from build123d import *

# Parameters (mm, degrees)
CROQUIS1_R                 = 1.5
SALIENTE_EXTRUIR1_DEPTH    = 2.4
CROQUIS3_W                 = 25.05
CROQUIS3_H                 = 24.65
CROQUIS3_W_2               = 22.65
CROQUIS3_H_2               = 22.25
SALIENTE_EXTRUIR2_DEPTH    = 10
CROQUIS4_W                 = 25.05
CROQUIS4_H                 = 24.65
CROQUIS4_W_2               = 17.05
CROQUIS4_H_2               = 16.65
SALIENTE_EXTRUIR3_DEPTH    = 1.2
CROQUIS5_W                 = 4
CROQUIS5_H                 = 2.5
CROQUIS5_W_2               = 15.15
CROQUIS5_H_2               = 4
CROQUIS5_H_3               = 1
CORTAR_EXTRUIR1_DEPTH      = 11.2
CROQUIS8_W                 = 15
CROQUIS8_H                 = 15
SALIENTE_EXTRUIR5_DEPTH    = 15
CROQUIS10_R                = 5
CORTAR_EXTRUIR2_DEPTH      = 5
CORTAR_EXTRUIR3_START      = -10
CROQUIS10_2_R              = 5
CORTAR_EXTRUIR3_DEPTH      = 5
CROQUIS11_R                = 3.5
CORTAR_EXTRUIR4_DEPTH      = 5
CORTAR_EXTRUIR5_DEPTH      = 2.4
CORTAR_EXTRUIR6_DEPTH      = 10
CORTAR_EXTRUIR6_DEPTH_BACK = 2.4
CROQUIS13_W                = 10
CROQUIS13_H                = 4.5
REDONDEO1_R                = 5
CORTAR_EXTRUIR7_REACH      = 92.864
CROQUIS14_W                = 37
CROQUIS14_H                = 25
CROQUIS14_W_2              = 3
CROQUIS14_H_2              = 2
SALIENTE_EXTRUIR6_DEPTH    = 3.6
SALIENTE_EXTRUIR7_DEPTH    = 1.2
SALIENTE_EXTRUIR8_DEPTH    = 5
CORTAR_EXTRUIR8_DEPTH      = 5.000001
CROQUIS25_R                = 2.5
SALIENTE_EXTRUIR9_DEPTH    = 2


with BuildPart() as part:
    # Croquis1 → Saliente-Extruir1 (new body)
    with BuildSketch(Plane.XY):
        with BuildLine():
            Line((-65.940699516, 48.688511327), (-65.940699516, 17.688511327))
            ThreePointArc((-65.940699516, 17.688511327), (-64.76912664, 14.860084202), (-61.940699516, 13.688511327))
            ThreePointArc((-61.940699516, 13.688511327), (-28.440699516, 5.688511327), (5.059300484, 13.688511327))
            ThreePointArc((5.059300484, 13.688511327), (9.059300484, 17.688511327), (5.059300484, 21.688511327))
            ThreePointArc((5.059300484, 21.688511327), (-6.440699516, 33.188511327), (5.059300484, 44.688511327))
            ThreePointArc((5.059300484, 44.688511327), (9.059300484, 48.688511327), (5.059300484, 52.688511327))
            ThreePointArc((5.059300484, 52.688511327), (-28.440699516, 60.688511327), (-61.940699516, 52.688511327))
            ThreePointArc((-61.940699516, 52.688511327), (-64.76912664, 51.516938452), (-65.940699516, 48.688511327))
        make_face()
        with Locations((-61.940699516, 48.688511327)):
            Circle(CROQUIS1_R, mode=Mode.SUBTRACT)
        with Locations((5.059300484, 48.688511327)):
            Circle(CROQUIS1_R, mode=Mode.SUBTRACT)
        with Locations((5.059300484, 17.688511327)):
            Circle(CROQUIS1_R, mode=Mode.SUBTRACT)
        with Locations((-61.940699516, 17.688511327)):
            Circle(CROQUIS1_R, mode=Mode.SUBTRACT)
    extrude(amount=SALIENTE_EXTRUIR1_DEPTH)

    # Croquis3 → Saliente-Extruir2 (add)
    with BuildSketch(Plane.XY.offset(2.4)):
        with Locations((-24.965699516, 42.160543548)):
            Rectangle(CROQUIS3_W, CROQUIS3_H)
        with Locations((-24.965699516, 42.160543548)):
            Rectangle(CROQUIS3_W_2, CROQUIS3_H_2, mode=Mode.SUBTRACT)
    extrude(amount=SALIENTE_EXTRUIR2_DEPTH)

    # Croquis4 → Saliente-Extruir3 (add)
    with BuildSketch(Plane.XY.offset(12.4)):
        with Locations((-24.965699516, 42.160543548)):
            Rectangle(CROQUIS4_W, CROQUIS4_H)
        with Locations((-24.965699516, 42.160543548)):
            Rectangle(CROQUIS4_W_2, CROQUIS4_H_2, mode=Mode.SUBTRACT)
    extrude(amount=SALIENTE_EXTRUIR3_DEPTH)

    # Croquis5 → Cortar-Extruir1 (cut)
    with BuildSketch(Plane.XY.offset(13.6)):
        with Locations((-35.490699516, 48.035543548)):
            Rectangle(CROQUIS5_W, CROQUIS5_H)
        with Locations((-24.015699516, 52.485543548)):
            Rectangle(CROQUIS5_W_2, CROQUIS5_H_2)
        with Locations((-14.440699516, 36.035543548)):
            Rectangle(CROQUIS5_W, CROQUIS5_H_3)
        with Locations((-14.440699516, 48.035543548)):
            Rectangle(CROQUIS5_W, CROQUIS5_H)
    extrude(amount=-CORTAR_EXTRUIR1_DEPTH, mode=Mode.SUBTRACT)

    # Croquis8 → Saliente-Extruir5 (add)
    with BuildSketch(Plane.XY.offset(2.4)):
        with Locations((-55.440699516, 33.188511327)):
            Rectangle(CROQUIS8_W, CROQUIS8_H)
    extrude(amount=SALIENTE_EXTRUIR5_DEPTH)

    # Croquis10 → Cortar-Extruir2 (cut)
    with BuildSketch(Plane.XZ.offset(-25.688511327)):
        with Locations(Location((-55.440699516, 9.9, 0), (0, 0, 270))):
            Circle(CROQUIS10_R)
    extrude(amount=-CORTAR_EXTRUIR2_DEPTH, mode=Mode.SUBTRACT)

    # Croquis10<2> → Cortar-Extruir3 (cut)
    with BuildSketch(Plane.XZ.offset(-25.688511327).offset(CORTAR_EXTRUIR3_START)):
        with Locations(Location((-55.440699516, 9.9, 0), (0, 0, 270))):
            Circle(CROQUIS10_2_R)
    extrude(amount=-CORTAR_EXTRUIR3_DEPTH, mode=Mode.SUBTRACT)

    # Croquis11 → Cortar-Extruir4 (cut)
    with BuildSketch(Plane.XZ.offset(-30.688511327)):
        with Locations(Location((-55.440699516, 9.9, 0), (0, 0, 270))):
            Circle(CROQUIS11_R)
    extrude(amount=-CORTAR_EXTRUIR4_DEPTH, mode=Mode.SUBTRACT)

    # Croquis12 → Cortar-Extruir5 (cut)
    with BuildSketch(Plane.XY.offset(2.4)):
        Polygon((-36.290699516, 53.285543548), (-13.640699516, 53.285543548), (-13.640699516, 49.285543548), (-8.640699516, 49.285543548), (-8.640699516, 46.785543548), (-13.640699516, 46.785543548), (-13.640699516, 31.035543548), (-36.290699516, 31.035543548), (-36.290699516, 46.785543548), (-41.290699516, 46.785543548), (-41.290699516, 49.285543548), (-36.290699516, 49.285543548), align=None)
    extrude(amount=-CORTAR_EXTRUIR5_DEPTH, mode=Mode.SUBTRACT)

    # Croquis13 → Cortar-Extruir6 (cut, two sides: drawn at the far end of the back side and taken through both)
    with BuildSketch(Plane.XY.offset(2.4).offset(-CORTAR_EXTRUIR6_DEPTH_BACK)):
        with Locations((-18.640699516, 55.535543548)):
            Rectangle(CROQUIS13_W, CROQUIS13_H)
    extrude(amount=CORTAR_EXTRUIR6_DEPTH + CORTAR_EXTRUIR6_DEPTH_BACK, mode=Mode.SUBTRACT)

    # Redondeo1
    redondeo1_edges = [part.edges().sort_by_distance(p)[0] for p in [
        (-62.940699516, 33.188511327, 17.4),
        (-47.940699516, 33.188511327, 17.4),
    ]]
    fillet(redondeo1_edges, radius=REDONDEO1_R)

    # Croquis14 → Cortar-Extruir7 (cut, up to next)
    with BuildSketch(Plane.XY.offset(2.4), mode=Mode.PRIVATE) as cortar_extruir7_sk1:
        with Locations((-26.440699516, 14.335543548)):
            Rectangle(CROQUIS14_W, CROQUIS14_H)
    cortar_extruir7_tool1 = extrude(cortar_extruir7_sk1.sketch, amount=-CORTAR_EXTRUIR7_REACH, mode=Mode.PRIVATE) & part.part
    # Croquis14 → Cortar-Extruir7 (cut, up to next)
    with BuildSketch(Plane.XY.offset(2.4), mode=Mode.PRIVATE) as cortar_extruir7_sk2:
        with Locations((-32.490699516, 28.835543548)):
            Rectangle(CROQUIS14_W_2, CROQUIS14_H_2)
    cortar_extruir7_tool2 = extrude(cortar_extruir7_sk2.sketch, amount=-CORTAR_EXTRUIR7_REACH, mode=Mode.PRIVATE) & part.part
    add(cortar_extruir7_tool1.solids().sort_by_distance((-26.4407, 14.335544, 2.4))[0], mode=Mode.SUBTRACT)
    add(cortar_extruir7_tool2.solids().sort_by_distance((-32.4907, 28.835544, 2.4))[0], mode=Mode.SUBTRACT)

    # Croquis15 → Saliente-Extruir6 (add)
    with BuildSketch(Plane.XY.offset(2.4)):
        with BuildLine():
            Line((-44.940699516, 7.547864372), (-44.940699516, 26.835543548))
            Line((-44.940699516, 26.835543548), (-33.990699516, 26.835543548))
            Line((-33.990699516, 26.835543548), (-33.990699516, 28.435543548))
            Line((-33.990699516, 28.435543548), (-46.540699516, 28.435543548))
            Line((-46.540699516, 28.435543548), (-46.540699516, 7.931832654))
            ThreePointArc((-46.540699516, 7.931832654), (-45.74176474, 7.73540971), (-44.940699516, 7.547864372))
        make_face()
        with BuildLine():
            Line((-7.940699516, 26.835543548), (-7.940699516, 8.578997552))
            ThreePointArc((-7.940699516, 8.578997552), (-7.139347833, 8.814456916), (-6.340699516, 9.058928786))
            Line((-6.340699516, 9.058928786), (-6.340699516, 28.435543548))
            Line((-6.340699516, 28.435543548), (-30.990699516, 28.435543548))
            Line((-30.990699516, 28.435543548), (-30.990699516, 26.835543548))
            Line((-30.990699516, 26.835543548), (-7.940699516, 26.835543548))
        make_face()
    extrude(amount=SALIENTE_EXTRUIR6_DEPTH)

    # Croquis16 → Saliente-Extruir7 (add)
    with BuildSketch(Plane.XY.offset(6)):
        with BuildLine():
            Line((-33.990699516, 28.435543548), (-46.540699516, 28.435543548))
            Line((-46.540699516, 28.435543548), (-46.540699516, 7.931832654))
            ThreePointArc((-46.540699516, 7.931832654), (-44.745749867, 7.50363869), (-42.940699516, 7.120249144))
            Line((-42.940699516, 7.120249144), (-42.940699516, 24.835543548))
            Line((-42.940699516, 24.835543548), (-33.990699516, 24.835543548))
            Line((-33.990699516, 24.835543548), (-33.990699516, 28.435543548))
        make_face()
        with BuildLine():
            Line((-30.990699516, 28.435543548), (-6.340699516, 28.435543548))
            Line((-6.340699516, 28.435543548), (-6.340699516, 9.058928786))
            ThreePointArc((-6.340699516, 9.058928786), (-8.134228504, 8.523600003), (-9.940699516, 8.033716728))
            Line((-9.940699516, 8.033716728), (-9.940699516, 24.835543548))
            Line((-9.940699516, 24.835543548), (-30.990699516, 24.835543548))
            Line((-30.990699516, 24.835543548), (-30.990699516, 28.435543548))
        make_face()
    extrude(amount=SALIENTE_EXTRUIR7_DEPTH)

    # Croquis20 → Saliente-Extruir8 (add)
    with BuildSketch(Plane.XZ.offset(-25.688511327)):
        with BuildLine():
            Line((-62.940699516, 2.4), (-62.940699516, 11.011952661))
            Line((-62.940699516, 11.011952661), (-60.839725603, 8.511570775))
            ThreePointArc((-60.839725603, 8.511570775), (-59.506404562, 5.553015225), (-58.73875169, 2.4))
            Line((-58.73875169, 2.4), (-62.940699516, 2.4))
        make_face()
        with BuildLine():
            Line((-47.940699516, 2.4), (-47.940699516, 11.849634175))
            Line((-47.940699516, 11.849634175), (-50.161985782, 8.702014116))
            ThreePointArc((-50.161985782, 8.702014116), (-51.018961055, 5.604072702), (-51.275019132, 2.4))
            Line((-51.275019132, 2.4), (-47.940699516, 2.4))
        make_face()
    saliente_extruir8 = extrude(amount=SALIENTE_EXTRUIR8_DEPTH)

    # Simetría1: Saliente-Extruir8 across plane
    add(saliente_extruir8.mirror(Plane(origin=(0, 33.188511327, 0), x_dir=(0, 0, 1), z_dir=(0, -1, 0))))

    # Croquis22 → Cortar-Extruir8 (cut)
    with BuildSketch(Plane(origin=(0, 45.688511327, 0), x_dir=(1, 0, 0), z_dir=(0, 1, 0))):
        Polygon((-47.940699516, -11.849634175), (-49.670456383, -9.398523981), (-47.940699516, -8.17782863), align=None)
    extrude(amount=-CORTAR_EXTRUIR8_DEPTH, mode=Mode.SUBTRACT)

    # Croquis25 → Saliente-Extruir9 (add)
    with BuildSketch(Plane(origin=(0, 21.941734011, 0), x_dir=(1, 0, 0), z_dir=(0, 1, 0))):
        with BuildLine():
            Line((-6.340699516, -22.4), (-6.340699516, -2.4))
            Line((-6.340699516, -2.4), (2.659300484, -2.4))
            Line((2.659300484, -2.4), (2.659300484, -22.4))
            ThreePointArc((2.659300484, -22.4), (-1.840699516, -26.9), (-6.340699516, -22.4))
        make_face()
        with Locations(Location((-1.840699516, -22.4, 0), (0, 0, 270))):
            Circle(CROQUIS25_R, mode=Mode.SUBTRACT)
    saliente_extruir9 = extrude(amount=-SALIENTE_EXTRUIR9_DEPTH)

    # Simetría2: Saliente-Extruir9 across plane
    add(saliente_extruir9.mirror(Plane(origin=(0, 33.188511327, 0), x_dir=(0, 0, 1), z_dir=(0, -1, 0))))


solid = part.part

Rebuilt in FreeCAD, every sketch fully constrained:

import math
import FreeCAD as App
import Part
import Sketcher
Q = App.Units.Quantity


def edges_at(feature, points):
    """Names of the edges that pass closest to the given points."""
    edges = feature.Shape.Edges
    near = lambda p: min(range(len(edges)), key=lambda i: edges[i].distToShape(Part.Vertex(*p))[0])
    return sorted({f"Edge{near(p) + 1}" for p in points})


def add_polygon(sketch, points):
    """Adds a closed chain of lines whose ends are joined by coincident constraints."""
    first, n = sketch.GeometryCount, len(points)
    for a, b in zip(points, points[1:] + points[:1]):
        sketch.addGeometry(Part.LineSegment(App.Vector(*a, 0), App.Vector(*b, 0)), False)
    for i in range(n):
        sketch.addConstraint(Sketcher.Constraint("Coincident", first + i, 2, first + (i + 1) % n, 1))

doc = App.newDocument("Part")
body = doc.addObject("PartDesign::Body", "Body")

# Sketch on XY plane
sketch1 = doc.addObject("Sketcher::SketchObject", "Sketch")
body.addObject(sketch1)
sketch1.AttachmentSupport = (doc.XY_Plane, [""])
sketch1.MapMode = "FlatFace"
sketch1.addGeometry([
    Part.LineSegment(App.Vector(-65.9, 48.7, 0), App.Vector(-65.9, 17.7, 0)),  # 0
    Part.ArcOfCircle(Part.Circle(App.Vector(-61.9, 17.7, 0), App.Vector(0, 0, 1), 4), math.radians(-180), math.radians(-90)),  # 1
    Part.ArcOfCircle(Part.Circle(App.Vector(-28.4, 79.8, 0), App.Vector(0, 0, 1), 74.1), math.radians(-117), math.radians(-63)),  # 2
    Part.ArcOfCircle(Part.Circle(App.Vector(5.1, 17.7, 0), App.Vector(0, 0, 1), 4), math.radians(-90), math.radians(90)),  # 3
    Part.ArcOfCircle(Part.Circle(App.Vector(5.1, 33.2, 0), App.Vector(0, 0, 1), 11.5), math.radians(90), math.radians(270)),  # 4
    Part.ArcOfCircle(Part.Circle(App.Vector(5.1, 48.7, 0), App.Vector(0, 0, 1), 4), math.radians(-90), math.radians(90)),  # 5
    Part.ArcOfCircle(Part.Circle(App.Vector(-28.4, -13.5, 0), App.Vector(0, 0, 1), 74.1), math.radians(63), math.radians(117)),  # 6
    Part.ArcOfCircle(Part.Circle(App.Vector(-61.9, 48.7, 0), App.Vector(0, 0, 1), 4), math.radians(90), math.radians(180)),  # 7
    Part.Circle(App.Vector(-61.9, 17.7, 0), App.Vector(0, 0, 1), 1.5),  # 8
    Part.Circle(App.Vector(5.1, 17.7, 0), App.Vector(0, 0, 1), 1.5),  # 9
    Part.Circle(App.Vector(-61.9, 48.7, 0), App.Vector(0, 0, 1), 1.5),  # 10
    Part.Circle(App.Vector(5.1, 48.7, 0), App.Vector(0, 0, 1), 1.5),  # 11
], False)
sketch1.addConstraint([
    Sketcher.Constraint("Tangent", 0, 2, 1, 1),
    Sketcher.Constraint("Coincident", 1, 2, 2, 1),
    Sketcher.Constraint("Coincident", 2, 2, 3, 1),
    Sketcher.Constraint("Tangent", 3, 2, 4, 2),
    Sketcher.Constraint("Tangent", 4, 1, 5, 1),
    Sketcher.Constraint("Coincident", 5, 2, 6, 1),
    Sketcher.Constraint("Coincident", 6, 2, 7, 1),
    Sketcher.Constraint("Tangent", 7, 2, 0, 1),
    Sketcher.Constraint("Vertical", 0),
    Sketcher.Constraint("Coincident", 8, 3, 1, 3),
    Sketcher.Constraint("Coincident", 9, 3, 3, 3),
    Sketcher.Constraint("Coincident", 10, 3, 7, 3),
    Sketcher.Constraint("Coincident", 11, 3, 5, 3),
    Sketcher.Constraint("Equal", 1, 3),
    Sketcher.Constraint("Equal", 3, 5),
    Sketcher.Constraint("Equal", 2, 6),
    Sketcher.Constraint("Equal", 5, 7),
    Sketcher.Constraint("Equal", 8, 9),
    Sketcher.Constraint("Equal", 9, 10),
    Sketcher.Constraint("Equal", 10, 11),
    Sketcher.Constraint("Horizontal", 1, 3, 3, 3),
    Sketcher.Constraint("Horizontal", 5, 3, 7, 3),
    Sketcher.Constraint("Vertical", 3, 3, 4, 3),
    Sketcher.Constraint("Vertical", 4, 3, 5, 3),
    Sketcher.Constraint("Vertical", 2, 3, 6, 3),
    Sketcher.Constraint("Vertical", 10, 3, 1, 2),
    Sketcher.Constraint("Vertical", 11, 3, 2, 2),
    Sketcher.Constraint("Vertical", 4, 1, 5, 2),
    Sketcher.Constraint("Diameter", 8, Q("3 mm")),
    Sketcher.Constraint("Radius", 1, Q("4 mm")),
    Sketcher.Constraint("Radius", 4, Q("11.5 mm")),
    Sketcher.Constraint("DistanceX", 1, 3, 3, 3, Q("67 mm")),
    Sketcher.Constraint("Radius", 2, Q("74.140625 mm")),
    Sketcher.Constraint("DistanceX", 1, 3, -1, 1, Q("61.9407 mm")),
    Sketcher.Constraint("DistanceY", -1, 1, 1, 3, Q("17.688511 mm")),
])
pad1 = doc.addObject("PartDesign::Pad", "Pad")
body.addObject(pad1)
pad1.Profile = sketch1
pad1.Length = 2.4

# Sketch on XY plane
sketch2 = doc.addObject("Sketcher::SketchObject", "Sketch001")
body.addObject(sketch2)
sketch2.AttachmentSupport = (doc.XY_Plane, [""])
sketch2.MapMode = "FlatFace"
sketch2.AttachmentOffset = App.Placement(App.Vector(0, 0, 2.4), App.Rotation())
add_polygon(sketch2, [(-37, 54), (-37, 30), (-12, 30), (-12, 54)])  # lines 0-3
add_polygon(sketch2, [(-14, 31), (-36, 31), (-36, 53), (-14, 53)])  # lines 4-7
sketch2.addConstraint([
    Sketcher.Constraint("Vertical", 0),
    Sketcher.Constraint("Horizontal", 1),
    Sketcher.Constraint("Vertical", 2),
    Sketcher.Constraint("Horizontal", 3),
    Sketcher.Constraint("Horizontal", 4),
    Sketcher.Constraint("Vertical", 5),
    Sketcher.Constraint("Horizontal", 6),
    Sketcher.Constraint("Vertical", 7),
    Sketcher.Constraint("DistanceX", 1, 1, 1, 2, Q("25.05 mm")),
    Sketcher.Constraint("DistanceX", 4, 2, 4, 1, Q("22.65 mm")),
    Sketcher.Constraint("DistanceY", 0, 2, 0, 1, Q("24.65 mm")),
    Sketcher.Constraint("DistanceY", 5, 1, 5, 2, Q("22.25 mm")),
    Sketcher.Constraint("DistanceX", 0, 2, 4, 2, Q("1.2 mm")),
    Sketcher.Constraint("DistanceY", 0, 2, 4, 2, Q("1.2 mm")),
    Sketcher.Constraint("DistanceX", 0, 2, -1, 1, Q("37.4907 mm")),
    Sketcher.Constraint("DistanceY", -1, 1, 0, 2, Q("29.835544 mm")),
])
pad2 = doc.addObject("PartDesign::Pad", "Pad001")
body.addObject(pad2)
pad2.Profile = sketch2
pad2.Length = 10

# Sketch on XY plane
sketch3 = doc.addObject("Sketcher::SketchObject", "Sketch002")
body.addObject(sketch3)
sketch3.AttachmentSupport = (doc.XY_Plane, [""])
sketch3.MapMode = "FlatFace"
sketch3.AttachmentOffset = App.Placement(App.Vector(0, 0, 12.4), App.Rotation())
add_polygon(sketch3, [(-37, 54), (-37, 30), (-12, 30), (-12, 54)])  # lines 0-3
add_polygon(sketch3, [(-16, 34), (-33, 34), (-33, 50), (-16, 50)])  # lines 4-7
sketch3.addConstraint([
    Sketcher.Constraint("Vertical", 0),
    Sketcher.Constraint("Horizontal", 1),
    Sketcher.Constraint("Vertical", 2),
    Sketcher.Constraint("Horizontal", 3),
    Sketcher.Constraint("Horizontal", 4),
    Sketcher.Constraint("Vertical", 5),
    Sketcher.Constraint("Horizontal", 6),
    Sketcher.Constraint("Vertical", 7),
    Sketcher.Constraint("DistanceX", 0, 2, 4, 2, Q("4 mm")),
    Sketcher.Constraint("DistanceY", 0, 2, 4, 2, Q("4 mm")),
    Sketcher.Constraint("DistanceY", 5, 2, 3, 2, Q("4 mm")),
    Sketcher.Constraint("DistanceX", 6, 2, 2, 2, Q("4 mm")),
    Sketcher.Constraint("DistanceX", 1, 1, 1, 2, Q("25.05 mm")),
    Sketcher.Constraint("DistanceY", 0, 2, 0, 1, Q("24.65 mm")),
    Sketcher.Constraint("DistanceX", 0, 2, -1, 1, Q("37.4907 mm")),
    Sketcher.Constraint("DistanceY", -1, 1, 0, 2, Q("29.835544 mm")),
])
pad3 = doc.addObject("PartDesign::Pad", "Pad002")
body.addObject(pad3)
pad3.Profile = sketch3
pad3.Length = 1.2

# Sketch on XY plane
sketch4 = doc.addObject("Sketcher::SketchObject", "Sketch003")
body.addObject(sketch4)
sketch4.AttachmentSupport = (doc.XY_Plane, [""])
sketch4.MapMode = "FlatFace"
sketch4.AttachmentOffset = App.Placement(App.Vector(0, 0, 13.6), App.Rotation())
add_polygon(sketch4, [(-37.5, 49.3), (-37.5, 46.8), (-33.5, 46.8), (-33.5, 49.3)])  # lines 0-3
add_polygon(sketch4, [(-31.6, 54.5), (-31.6, 50.5), (-16.4, 50.5), (-16.4, 54.5)])  # lines 4-7
add_polygon(sketch4, [(-16.4, 36.5), (-16.4, 35.5), (-12.4, 35.5), (-12.4, 36.5)])  # lines 8-11
add_polygon(sketch4, [(-16.4, 49.3), (-16.4, 46.8), (-12.4, 46.8), (-12.4, 49.3)])  # lines 12-15
sketch4.addConstraint([
    Sketcher.Constraint("Vertical", 0),
    Sketcher.Constraint("Horizontal", 1),
    Sketcher.Constraint("Vertical", 2),
    Sketcher.Constraint("Horizontal", 3),
    Sketcher.Constraint("Vertical", 4),
    Sketcher.Constraint("Horizontal", 5),
    Sketcher.Constraint("Vertical", 6),
    Sketcher.Constraint("Horizontal", 7),
    Sketcher.Constraint("Vertical", 8),
    Sketcher.Constraint("Horizontal", 9),
    Sketcher.Constraint("Vertical", 10),
    Sketcher.Constraint("Horizontal", 11),
    Sketcher.Constraint("Vertical", 12),
    Sketcher.Constraint("Horizontal", 13),
    Sketcher.Constraint("Vertical", 14),
    Sketcher.Constraint("Horizontal", 15),
    Sketcher.Constraint("Horizontal", 1, 2, 12, 2),
    Sketcher.Constraint("Horizontal", 3, 2, 14, 2),
    Sketcher.Constraint("Vertical", 6, 2, 8, 2),
    Sketcher.Constraint("Vertical", 11, 2, 12, 2),
    Sketcher.Constraint("Vertical", 10, 2, 13, 2),
    Sketcher.Constraint("Equal", 3, 9),
    Sketcher.Constraint("Equal", 15, 4),
    Sketcher.Constraint("DistanceX", 1, 1, 1, 2, Q("4 mm")),
    Sketcher.Constraint("DistanceY", 8, 2, 8, 1, Q("1 mm")),
    Sketcher.Constraint("DistanceY", 0, 2, 0, 1, Q("2.5 mm")),
    Sketcher.Constraint("DistanceX", 5, 1, 5, 2, Q("15.15 mm")),
    Sketcher.Constraint("DistanceX", 2, 2, 4, 2, Q("1.9 mm")),
    Sketcher.Constraint("DistanceY", 2, 2, 4, 2, Q("1.2 mm")),
    Sketcher.Constraint("DistanceY", 8, 2, 5, 2, Q("14.95 mm")),
    Sketcher.Constraint("DistanceX", 0, 2, -1, 1, Q("37.4907 mm")),
    Sketcher.Constraint("DistanceY", -1, 1, 0, 2, Q("46.785544 mm")),
])
pocket1 = doc.addObject("PartDesign::Pocket", "Pocket")
body.addObject(pocket1)
pocket1.Profile = sketch4
pocket1.Length = 11.2

# Sketch on XY plane
sketch5 = doc.addObject("Sketcher::SketchObject", "Sketch004")
body.addObject(sketch5)
sketch5.AttachmentSupport = (doc.XY_Plane, [""])
sketch5.MapMode = "FlatFace"
sketch5.AttachmentOffset = App.Placement(App.Vector(0, 0, 2.4), App.Rotation())
add_polygon(sketch5, [(-63, 41), (-63, 26), (-48, 26), (-48, 41)])  # lines 0-3
sketch5.addConstraint([
    Sketcher.Constraint("Vertical", 0),
    Sketcher.Constraint("Horizontal", 1),
    Sketcher.Constraint("Vertical", 2),
    Sketcher.Constraint("Horizontal", 3),
    Sketcher.Constraint("Equal", 3, 0),
    Sketcher.Constraint("DistanceX", 1, 1, 1, 2, Q("15 mm")),
    Sketcher.Constraint("DistanceX", 0, 2, -1, 1, Q("62.9407 mm")),
    Sketcher.Constraint("DistanceY", -1, 1, 0, 2, Q("25.688511 mm")),
])
pad4 = doc.addObject("PartDesign::Pad", "Pad003")
body.addObject(pad4)
pad4.Profile = sketch5
pad4.Length = 15

# Sketch on XZ plane
sketch6 = doc.addObject("Sketcher::SketchObject", "Sketch005")
body.addObject(sketch6)
sketch6.AttachmentSupport = (doc.XZ_Plane, [""])
sketch6.MapMode = "FlatFace"
sketch6.AttachmentOffset = App.Placement(App.Vector(0, 0, -25.688511), App.Rotation())
sketch6.addGeometry(Part.Circle(App.Vector(-55, 10, 0), App.Vector(0, 0, 1), 5), False)
sketch6.addConstraint([
    Sketcher.Constraint("Diameter", 0, Q("10 mm")),
    Sketcher.Constraint("DistanceY", -1, 1, 0, 3, Q("9.9 mm")),
    Sketcher.Constraint("DistanceX", 0, 3, -1, 1, Q("55.4407 mm")),
])
pocket2 = doc.addObject("PartDesign::Pocket", "Pocket001")
body.addObject(pocket2)
pocket2.Profile = sketch6
pocket2.Length = 5

# Sketch on XZ plane
sketch7 = doc.addObject("Sketcher::SketchObject", "Sketch006")
body.addObject(sketch7)
sketch7.AttachmentSupport = (doc.XZ_Plane, [""])
sketch7.MapMode = "FlatFace"
sketch7.AttachmentOffset = App.Placement(App.Vector(0, 0, -35.688511), App.Rotation())
sketch7.addGeometry(Part.Circle(App.Vector(-55, 10, 0), App.Vector(0, 0, 1), 5), False)
sketch7.addConstraint([
    Sketcher.Constraint("Diameter", 0, Q("10 mm")),
    Sketcher.Constraint("DistanceY", -1, 1, 0, 3, Q("9.9 mm")),
    Sketcher.Constraint("DistanceX", 0, 3, -1, 1, Q("55.4407 mm")),
])
pocket3 = doc.addObject("PartDesign::Pocket", "Pocket002")
body.addObject(pocket3)
pocket3.Profile = sketch7
pocket3.Length = 5

# Sketch on XZ plane
sketch8 = doc.addObject("Sketcher::SketchObject", "Sketch007")
body.addObject(sketch8)
sketch8.AttachmentSupport = (doc.XZ_Plane, [""])
sketch8.MapMode = "FlatFace"
sketch8.AttachmentOffset = App.Placement(App.Vector(0, 0, -30.688511), App.Rotation())
sketch8.addGeometry(Part.Circle(App.Vector(-55.4, 9.9, 0), App.Vector(0, 0, 1), 3.5), False)
sketch8.addConstraint([
    Sketcher.Constraint("Diameter", 0, Q("7 mm")),
    Sketcher.Constraint("DistanceY", -1, 1, 0, 3, Q("9.9 mm")),
    Sketcher.Constraint("DistanceX", 0, 3, -1, 1, Q("55.4407 mm")),
])
pocket4 = doc.addObject("PartDesign::Pocket", "Pocket003")
body.addObject(pocket4)
pocket4.Profile = sketch8
pocket4.Length = 5

# Sketch on XY plane
sketch9 = doc.addObject("Sketcher::SketchObject", "Sketch008")
body.addObject(sketch9)
sketch9.AttachmentSupport = (doc.XY_Plane, [""])
sketch9.MapMode = "FlatFace"
sketch9.AttachmentOffset = App.Placement(App.Vector(0, 0, 2.4), App.Rotation())
add_polygon(sketch9, [(-13.6, 53.3), (-36.3, 53.3), (-36.3, 49.3), (-41.3, 49.3), (-41.3, 46.8), (-36.3, 46.8), (-36.3, 31), (-13.6, 31), (-13.6, 46.8), (-8.6, 46.8), (-8.6, 49.3), (-13.6, 49.3)])  # lines 0-11
sketch9.addConstraint([
    Sketcher.Constraint("Horizontal", 0),
    Sketcher.Constraint("Vertical", 1),
    Sketcher.Constraint("Horizontal", 2),
    Sketcher.Constraint("Vertical", 3),
    Sketcher.Constraint("Horizontal", 4),
    Sketcher.Constraint("Vertical", 5),
    Sketcher.Constraint("Horizontal", 6),
    Sketcher.Constraint("Vertical", 7),
    Sketcher.Constraint("Horizontal", 8),
    Sketcher.Constraint("Vertical", 9),
    Sketcher.Constraint("Horizontal", 10),
    Sketcher.Constraint("Vertical", 11),
    Sketcher.Constraint("Horizontal", 4, 2, 7, 2),
    Sketcher.Constraint("Horizontal", 2, 2, 9, 2),
    Sketcher.Constraint("Vertical", 1, 2, 4, 2),
    Sketcher.Constraint("Vertical", 7, 2, 10, 2),
    Sketcher.Constraint("Equal", 4, 8),
    Sketcher.Constraint("DistanceX", 2, 2, 2, 1, Q("5 mm")),
    Sketcher.Constraint("DistanceY", 1, 2, 1, 1, Q("4 mm")),
    Sketcher.Constraint("DistanceY", 3, 2, 3, 1, Q("2.5 mm")),
    Sketcher.Constraint("DistanceX", 0, 2, 0, 1, Q("22.65 mm")),
    Sketcher.Constraint("DistanceY", 5, 2, 5, 1, Q("15.75 mm")),
    Sketcher.Constraint("DistanceX", 0, 2, -1, 1, Q("36.2907 mm")),
    Sketcher.Constraint("DistanceY", -1, 1, 0, 2, Q("53.285544 mm")),
])
pocket5 = doc.addObject("PartDesign::Pocket", "Pocket004")
body.addObject(pocket5)
pocket5.Profile = sketch9
pocket5.Length = 2.4

# Sketch on XY plane
sketch10 = doc.addObject("Sketcher::SketchObject", "Sketch009")
body.addObject(sketch10)
sketch10.AttachmentSupport = (doc.XY_Plane, [""])
sketch10.MapMode = "FlatFace"
sketch10.AttachmentOffset = App.Placement(App.Vector(0, 0, 2.4), App.Rotation())
add_polygon(sketch10, [(-23.6, 57.8), (-23.6, 53.3), (-13.6, 53.3), (-13.6, 57.8)])  # lines 0-3
sketch10.addConstraint([
    Sketcher.Constraint("Vertical", 0),
    Sketcher.Constraint("Horizontal", 1),
    Sketcher.Constraint("Vertical", 2),
    Sketcher.Constraint("Horizontal", 3),
    Sketcher.Constraint("DistanceX", 1, 1, 1, 2, Q("10 mm")),
    Sketcher.Constraint("DistanceY", 0, 2, 0, 1, Q("4.5 mm")),
    Sketcher.Constraint("DistanceX", 0, 2, -1, 1, Q("23.6407 mm")),
    Sketcher.Constraint("DistanceY", -1, 1, 0, 2, Q("53.285544 mm")),
])
pocket6 = doc.addObject("PartDesign::Pocket", "Pocket005")
body.addObject(pocket6)
pocket6.Profile = sketch10
pocket6.Type = "TwoLengths"
pocket6.Length = 10
pocket6.Length2 = 2.4
pocket6.Reversed = True
doc.recompute()

fillet = doc.addObject("PartDesign::Fillet", "Fillet")
body.addObject(fillet)
fillet.Base = (pocket6, edges_at(pocket6, [(-62.941, 33.189, 17.4), (-47.941, 33.189, 17.4)]))
fillet.Radius = 5

# Sketch on XY plane
sketch11 = doc.addObject("Sketcher::SketchObject", "Sketch010")
body.addObject(sketch11)
sketch11.AttachmentSupport = (doc.XY_Plane, [""])
sketch11.MapMode = "FlatFace"
sketch11.AttachmentOffset = App.Placement(App.Vector(0, 0, 2.4), App.Rotation())
add_polygon(sketch11, [(-45, 27), (-45, 2), (-8, 2), (-8, 27)])  # lines 0-3
sketch11.addConstraint([
    Sketcher.Constraint("Vertical", 0),
    Sketcher.Constraint("Horizontal", 1),
    Sketcher.Constraint("Vertical", 2),
    Sketcher.Constraint("Horizontal", 3),
    Sketcher.Constraint("DistanceX", 1, 1, 1, 2, Q("37 mm")),
    Sketcher.Constraint("DistanceY", 0, 2, 0, 1, Q("25 mm")),
    Sketcher.Constraint("DistanceX", 0, 2, -1, 1, Q("44.9407 mm")),
    Sketcher.Constraint("DistanceY", -1, 1, 0, 2, Q("1.835544 mm")),
])
pocket7 = doc.addObject("PartDesign::Pocket", "Pocket006")
body.addObject(pocket7)
pocket7.Profile = sketch11
pocket7.Type = "UpToFirst"

# Sketch on XY plane
sketch12 = doc.addObject("Sketcher::SketchObject", "Sketch011")
body.addObject(sketch12)
sketch12.AttachmentSupport = (doc.XY_Plane, [""])
sketch12.MapMode = "FlatFace"
sketch12.AttachmentOffset = App.Placement(App.Vector(0, 0, 2.4), App.Rotation())
add_polygon(sketch12, [(-34, 29.8), (-34, 27.8), (-31, 27.8), (-31, 29.8)])  # lines 0-3
sketch12.addConstraint([
    Sketcher.Constraint("Vertical", 0),
    Sketcher.Constraint("Horizontal", 1),
    Sketcher.Constraint("Vertical", 2),
    Sketcher.Constraint("Horizontal", 3),
    Sketcher.Constraint("DistanceX", 1, 1, 1, 2, Q("3 mm")),
    Sketcher.Constraint("DistanceY", 0, 2, 0, 1, Q("2 mm")),
    Sketcher.Constraint("DistanceX", 0, 2, -1, 1, Q("33.9907 mm")),
    Sketcher.Constraint("DistanceY", -1, 1, 0, 2, Q("27.835544 mm")),
])
pocket8 = doc.addObject("PartDesign::Pocket", "Pocket007")
body.addObject(pocket8)
pocket8.Profile = sketch12
pocket8.Type = "UpToFirst"

# Sketch on XY plane
sketch13 = doc.addObject("Sketcher::SketchObject", "Sketch012")
body.addObject(sketch13)
sketch13.AttachmentSupport = (doc.XY_Plane, [""])
sketch13.MapMode = "FlatFace"
sketch13.AttachmentOffset = App.Placement(App.Vector(0, 0, 2.4), App.Rotation())
sketch13.addGeometry([
    Part.LineSegment(App.Vector(-44.9, 7.5, 0), App.Vector(-44.9, 26.8, 0)),  # 0
    Part.LineSegment(App.Vector(-44.9, 26.8, 0), App.Vector(-34, 26.8, 0)),  # 1
    Part.LineSegment(App.Vector(-34, 26.8, 0), App.Vector(-34, 28.4, 0)),  # 2
    Part.LineSegment(App.Vector(-34, 28.4, 0), App.Vector(-46.5, 28.4, 0)),  # 3
    Part.LineSegment(App.Vector(-46.5, 28.4, 0), App.Vector(-46.5, 7.9, 0)),  # 4
    Part.ArcOfCircle(Part.Circle(App.Vector(-28.4, 79.8, 0), App.Vector(0, 0, 1), 74.1), math.radians(-104.13), math.radians(-102.86)),  # 5
    Part.LineSegment(App.Vector(-7.9, 26.8, 0), App.Vector(-7.9, 8.6, 0)),  # 6
    Part.ArcOfCircle(Part.Circle(App.Vector(-28.4, 79.8, 0), App.Vector(0, 0, 1), 74.1), math.radians(-73.95), math.radians(-72.66)),  # 7
    Part.LineSegment(App.Vector(-6.3, 9.1, 0), App.Vector(-6.3, 28.4, 0)),  # 8
    Part.LineSegment(App.Vector(-6.3, 28.4, 0), App.Vector(-31, 28.4, 0)),  # 9
    Part.LineSegment(App.Vector(-31, 28.4, 0), App.Vector(-31, 26.8, 0)),  # 10
    Part.LineSegment(App.Vector(-31, 26.8, 0), App.Vector(-7.9, 26.8, 0)),  # 11
], False)
sketch13.addConstraint([
    Sketcher.Constraint("Coincident", 0, 2, 1, 1),
    Sketcher.Constraint("Coincident", 1, 2, 2, 1),
    Sketcher.Constraint("Coincident", 2, 2, 3, 1),
    Sketcher.Constraint("Coincident", 3, 2, 4, 1),
    Sketcher.Constraint("Coincident", 4, 2, 5, 1),
    Sketcher.Constraint("Coincident", 5, 2, 0, 1),
    Sketcher.Constraint("Coincident", 6, 2, 7, 1),
    Sketcher.Constraint("Coincident", 7, 2, 8, 1),
    Sketcher.Constraint("Coincident", 8, 2, 9, 1),
    Sketcher.Constraint("Coincident", 9, 2, 10, 1),
    Sketcher.Constraint("Coincident", 10, 2, 11, 1),
    Sketcher.Constraint("Coincident", 11, 2, 6, 1),
    Sketcher.Constraint("Vertical", 0),
    Sketcher.Constraint("Horizontal", 1),
    Sketcher.Constraint("Vertical", 2),
    Sketcher.Constraint("Horizontal", 3),
    Sketcher.Constraint("Vertical", 4),
    Sketcher.Constraint("Vertical", 6),
    Sketcher.Constraint("Vertical", 8),
    Sketcher.Constraint("Horizontal", 9),
    Sketcher.Constraint("Vertical", 10),
    Sketcher.Constraint("Horizontal", 11),
    Sketcher.Constraint("Coincident", 7, 3, 5, 3),
    Sketcher.Constraint("Horizontal", 3, 2, 8, 2),
    Sketcher.Constraint("Horizontal", 1, 2, 10, 2),
    Sketcher.Constraint("DistanceY", 2, 1, 2, 2, Q("1.6 mm")),
    Sketcher.Constraint("DistanceX", 5, 2, 6, 2, Q("37 mm")),
    Sketcher.Constraint("DistanceX", 2, 2, 9, 2, Q("3 mm")),
    Sketcher.Constraint("DistanceX", 1, 1, 1, 2, Q("10.95 mm")),
    Sketcher.Constraint("DistanceX", 3, 2, 3, 1, Q("12.55 mm")),
    Sketcher.Constraint("DistanceX", 9, 2, 9, 1, Q("24.65 mm")),
    Sketcher.Constraint("DistanceX", 0, 2, 5, 3, Q("16.500001 mm")),
    Sketcher.Constraint("Radius", 5, Q("74.140628 mm")),
    Sketcher.Constraint("Radius", 7, Q("74.140631 mm")),
    Sketcher.Constraint("DistanceY", 0, 1, 0, 2, Q("19.287679 mm")),
    Sketcher.Constraint("DistanceX", 5, 3, -1, 1, Q("28.440699 mm")),
    Sketcher.Constraint("DistanceY", -1, 1, 5, 3, Q("79.829139 mm")),
])
pad5 = doc.addObject("PartDesign::Pad", "Pad004")
body.addObject(pad5)
pad5.Profile = sketch13
pad5.Length = 3.6

# Sketch on XY plane
sketch14 = doc.addObject("Sketcher::SketchObject", "Sketch013")
body.addObject(sketch14)
sketch14.AttachmentSupport = (doc.XY_Plane, [""])
sketch14.MapMode = "FlatFace"
sketch14.AttachmentOffset = App.Placement(App.Vector(0, 0, 6), App.Rotation())
sketch14.addGeometry([
    Part.LineSegment(App.Vector(-34, 28.4, 0), App.Vector(-46.5, 28.4, 0)),  # 0
    Part.LineSegment(App.Vector(-46.5, 28.4, 0), App.Vector(-46.5, 7.9, 0)),  # 1
    Part.ArcOfCircle(Part.Circle(App.Vector(-28.4, 79.8, 0), App.Vector(0, 0, 1), 74.1), math.radians(-104.13), math.radians(-101.28)),  # 2
    Part.LineSegment(App.Vector(-42.9, 7.1, 0), App.Vector(-42.9, 24.8, 0)),  # 3
    Part.LineSegment(App.Vector(-42.9, 24.8, 0), App.Vector(-34, 24.8, 0)),  # 4
    Part.LineSegment(App.Vector(-34, 24.8, 0), App.Vector(-34, 28.4, 0)),  # 5
    Part.LineSegment(App.Vector(-6.3, 28.4, 0), App.Vector(-31, 28.4, 0)),  # 6
    Part.LineSegment(App.Vector(-31, 28.4, 0), App.Vector(-31, 24.8, 0)),  # 7
    Part.LineSegment(App.Vector(-31, 24.8, 0), App.Vector(-9.9, 24.8, 0)),  # 8
    Part.LineSegment(App.Vector(-9.9, 24.8, 0), App.Vector(-9.9, 8, 0)),  # 9
    Part.ArcOfCircle(Part.Circle(App.Vector(-28.4, 79.8, 0), App.Vector(0, 0, 1), 74.1), math.radians(-75.55), math.radians(-72.66)),  # 10
    Part.LineSegment(App.Vector(-6.3, 9.1, 0), App.Vector(-6.3, 28.4, 0)),  # 11
], False)
sketch14.addConstraint([
    Sketcher.Constraint("Coincident", 0, 2, 1, 1),
    Sketcher.Constraint("Coincident", 1, 2, 2, 1),
    Sketcher.Constraint("Coincident", 2, 2, 3, 1),
    Sketcher.Constraint("Coincident", 3, 2, 4, 1),
    Sketcher.Constraint("Coincident", 4, 2, 5, 1),
    Sketcher.Constraint("Coincident", 5, 2, 0, 1),
    Sketcher.Constraint("Coincident", 6, 2, 7, 1),
    Sketcher.Constraint("Coincident", 7, 2, 8, 1),
    Sketcher.Constraint("Coincident", 8, 2, 9, 1),
    Sketcher.Constraint("Coincident", 9, 2, 10, 1),
    Sketcher.Constraint("Coincident", 10, 2, 11, 1),
    Sketcher.Constraint("Coincident", 11, 2, 6, 1),
    Sketcher.Constraint("Horizontal", 0),
    Sketcher.Constraint("Vertical", 1),
    Sketcher.Constraint("Vertical", 3),
    Sketcher.Constraint("Horizontal", 4),
    Sketcher.Constraint("Vertical", 5),
    Sketcher.Constraint("Horizontal", 6),
    Sketcher.Constraint("Vertical", 7),
    Sketcher.Constraint("Horizontal", 8),
    Sketcher.Constraint("Vertical", 9),
    Sketcher.Constraint("Vertical", 11),
    Sketcher.Constraint("Coincident", 10, 3, 2, 3),
    Sketcher.Constraint("Equal", 2, 10),
    Sketcher.Constraint("Horizontal", 5, 2, 6, 2),
    Sketcher.Constraint("Horizontal", 4, 2, 7, 2),
    Sketcher.Constraint("DistanceY", 5, 1, 5, 2, Q("3.6 mm")),
    Sketcher.Constraint("DistanceX", 5, 2, 6, 2, Q("3 mm")),
    Sketcher.Constraint("DistanceX", 3, 2, 8, 2, Q("33 mm")),
    Sketcher.Constraint("DistanceX", 0, 2, 0, 1, Q("12.55 mm")),
    Sketcher.Constraint("DistanceX", 4, 1, 4, 2, Q("8.95 mm")),
    Sketcher.Constraint("DistanceX", 6, 2, 6, 1, Q("24.65 mm")),
    Sketcher.Constraint("DistanceX", 0, 2, 10, 3, Q("18.1 mm")),
    Sketcher.Constraint("Radius", 2, Q("74.140626 mm")),
    Sketcher.Constraint("DistanceY", 1, 2, 1, 1, Q("20.503711 mm")),
    Sketcher.Constraint("DistanceX", 2, 3, -1, 1, Q("28.440699 mm")),
    Sketcher.Constraint("DistanceY", -1, 1, 2, 2, Q("7.120249 mm")),
])
pad6 = doc.addObject("PartDesign::Pad", "Pad005")
body.addObject(pad6)
pad6.Profile = sketch14
pad6.Length = 1.2

# Sketch on XZ plane
sketch15 = doc.addObject("Sketcher::SketchObject", "Sketch014")
body.addObject(sketch15)
sketch15.AttachmentSupport = (doc.XZ_Plane, [""])
sketch15.MapMode = "FlatFace"
sketch15.AttachmentOffset = App.Placement(App.Vector(0, 0, -25.688511), App.Rotation())
sketch15.addGeometry([
    Part.LineSegment(App.Vector(-62.9, 11, 0), App.Vector(-62.9, 2.4, 0)),  # 0
    Part.LineSegment(App.Vector(-62.9, 2.4, 0), App.Vector(-58.7, 2.4, 0)),  # 1
    Part.ArcOfCircle(Part.Circle(App.Vector(-76.2, -0.2, 0), App.Vector(0, 0, 1), 17.6), math.radians(8), math.radians(30)),  # 2
    Part.LineSegment(App.Vector(-60.8, 8.5, 0), App.Vector(-62.9, 11, 0)),  # 3
    Part.LineSegment(App.Vector(-47.9, 2.4, 0), App.Vector(-47.9, 11.8, 0)),  # 4
    Part.LineSegment(App.Vector(-47.9, 11.8, 0), App.Vector(-50.2, 8.7, 0)),  # 5
    Part.ArcOfCircle(Part.Circle(App.Vector(-34.3, 2.7, 0), App.Vector(0, 0, 1), 16.9), math.radians(159), math.radians(181)),  # 6
    Part.LineSegment(App.Vector(-51.3, 2.4, 0), App.Vector(-47.9, 2.4, 0)),  # 7
], False)
sketch15.addConstraint([
    Sketcher.Constraint("Coincident", 0, 2, 1, 1),
    Sketcher.Constraint("Coincident", 1, 2, 2, 1),
    Sketcher.Constraint("Coincident", 2, 2, 3, 1),
    Sketcher.Constraint("Coincident", 3, 2, 0, 1),
    Sketcher.Constraint("Coincident", 4, 2, 5, 1),
    Sketcher.Constraint("Coincident", 5, 2, 6, 1),
    Sketcher.Constraint("Coincident", 6, 2, 7, 1),
    Sketcher.Constraint("Coincident", 7, 2, 4, 1),
    Sketcher.Constraint("Vertical", 0),
    Sketcher.Constraint("Horizontal", 1),
    Sketcher.Constraint("Vertical", 4),
    Sketcher.Constraint("Horizontal", 7),
    Sketcher.Constraint("Horizontal", 1, 2, 6, 2),
    Sketcher.Constraint("DistanceX", 3, 2, 4, 2, Q("15 mm")),
    Sketcher.Constraint("DistanceY", -1, 1, 0, 2, Q("2.4 mm")),
    Sketcher.Constraint("Radius", 6, Q("16.931092 mm")),
    Sketcher.Constraint("Radius", 2, Q("17.605325 mm")),
    Sketcher.Constraint("DistanceX", 7, 1, 7, 2, Q("3.33432 mm")),
    Sketcher.Constraint("DistanceX", 0, 2, -1, 1, Q("62.9407 mm")),
    Sketcher.Constraint("DistanceY", 6, 3, 3, 2, Q("8.352598 mm")),
    Sketcher.Constraint("DistanceX", 1, 1, 1, 2, Q("4.201948 mm")),
    Sketcher.Constraint("DistanceY", 0, 2, 0, 1, Q("8.611953 mm")),
    Sketcher.Constraint("DistanceY", 4, 1, 4, 2, Q("9.449634 mm")),
    Sketcher.Constraint("DistanceY", -1, 1, 2, 2, Q("8.511571 mm")),
    Sketcher.Constraint("DistanceX", 2, 3, 6, 3, Q("41.809509 mm")),
    Sketcher.Constraint("DistanceY", 5, 2, 4, 2, Q("3.14762 mm")),
])
pad7 = doc.addObject("PartDesign::Pad", "Pad006")
body.addObject(pad7)
pad7.Profile = sketch15
pad7.Length = 5
doc.recompute()

datumplane = doc.addObject("PartDesign::Plane", "DatumPlane")
body.addObject(datumplane)
datumplane.AttachmentSupport = (doc.XZ_Plane, [""])
datumplane.MapMode = "FlatFace"
datumplane.AttachmentOffset = App.Placement(App.Vector(0, 0, -33.188511), App.Rotation())
mirrored = doc.addObject("PartDesign::Mirrored", "Mirrored")
body.addObject(mirrored)
mirrored.Originals = [pad7]
mirrored.MirrorPlane = (datumplane, [""])
body.Tip = mirrored

# Sketch on XZ plane
sketch16 = doc.addObject("Sketcher::SketchObject", "Sketch015")
body.addObject(sketch16)
sketch16.AttachmentSupport = (doc.XZ_Plane, [""])
sketch16.MapMode = "FlatFace"
sketch16.AttachmentOffset = App.Placement(App.Vector(0, 0, -45.688511), App.Rotation())
add_polygon(sketch16, [(-49.7, 9.4), (-47.9, 11.8), (-47.9, 8.2)])  # lines 0-2
sketch16.addConstraint([
    Sketcher.Constraint("Vertical", 1),
    Sketcher.Constraint("Perpendicular", 0, 2),
    Sketcher.Constraint("Distance", 0, Q("3 mm")),
    Sketcher.Constraint("DistanceX", 0, 2, -1, 1, Q("47.9407 mm")),
    Sketcher.Constraint("Distance", 2, Q("2.11711 mm")),
    Sketcher.Constraint("DistanceY", -1, 1, 1, 2, Q("8.177829 mm")),
])
pocket9 = doc.addObject("PartDesign::Pocket", "Pocket008")
body.addObject(pocket9)
pocket9.Profile = sketch16
pocket9.Length = 5.000001
pocket9.Reversed = True

# Sketch on XZ plane
sketch17 = doc.addObject("Sketcher::SketchObject", "Sketch016")
body.addObject(sketch17)
sketch17.AttachmentSupport = (doc.XZ_Plane, [""])
sketch17.MapMode = "FlatFace"
sketch17.AttachmentOffset = App.Placement(App.Vector(0, 0, -21.941734), App.Rotation())
sketch17.addGeometry([
    Part.LineSegment(App.Vector(-6.3, 2.4, 0), App.Vector(-6.3, 22.4, 0)),  # 0
    Part.ArcOfCircle(Part.Circle(App.Vector(-1.8, 22.4, 0), App.Vector(0, 0, 1), 4.5), math.radians(0), math.radians(180)),  # 1
    Part.LineSegment(App.Vector(2.7, 22.4, 0), App.Vector(2.7, 2.4, 0)),  # 2
    Part.LineSegment(App.Vector(2.7, 2.4, 0), App.Vector(-6.3, 2.4, 0)),  # 3
    Part.Circle(App.Vector(-1.8, 22.4, 0), App.Vector(0, 0, 1), 2.5),  # 4
], False)
sketch17.addConstraint([
    Sketcher.Constraint("Tangent", 0, 2, 1, 2),
    Sketcher.Constraint("Tangent", 1, 1, 2, 1),
    Sketcher.Constraint("Coincident", 2, 2, 3, 1),
    Sketcher.Constraint("Coincident", 3, 2, 0, 1),
    Sketcher.Constraint("Vertical", 0),
    Sketcher.Constraint("Vertical", 2),
    Sketcher.Constraint("Horizontal", 3),
    Sketcher.Constraint("Coincident", 4, 3, 1, 3),
    Sketcher.Constraint("Diameter", 4, Q("5 mm")),
    Sketcher.Constraint("Radius", 1, Q("4.5 mm")),
    Sketcher.Constraint("DistanceY", 0, 1, 0, 2, Q("20 mm")),
    Sketcher.Constraint("DistanceY", -1, 1, 1, 3, Q("22.4 mm")),
    Sketcher.Constraint("DistanceX", 1, 3, -1, 1, Q("1.8407 mm")),
])
pad8 = doc.addObject("PartDesign::Pad", "Pad007")
body.addObject(pad8)
pad8.Profile = sketch17
pad8.Length = 2
doc.recompute()

datumplane2 = doc.addObject("PartDesign::Plane", "DatumPlane001")
body.addObject(datumplane2)
datumplane2.AttachmentSupport = (doc.XZ_Plane, [""])
datumplane2.MapMode = "FlatFace"
datumplane2.AttachmentOffset = App.Placement(App.Vector(0, 0, -33.188511), App.Rotation())
mirrored2 = doc.addObject("PartDesign::Mirrored", "Mirrored001")
body.addObject(mirrored2)
mirrored2.Originals = [pad8]
mirrored2.MirrorPlane = (datumplane2, [""])
body.Tip = mirrored2

doc.recompute()
